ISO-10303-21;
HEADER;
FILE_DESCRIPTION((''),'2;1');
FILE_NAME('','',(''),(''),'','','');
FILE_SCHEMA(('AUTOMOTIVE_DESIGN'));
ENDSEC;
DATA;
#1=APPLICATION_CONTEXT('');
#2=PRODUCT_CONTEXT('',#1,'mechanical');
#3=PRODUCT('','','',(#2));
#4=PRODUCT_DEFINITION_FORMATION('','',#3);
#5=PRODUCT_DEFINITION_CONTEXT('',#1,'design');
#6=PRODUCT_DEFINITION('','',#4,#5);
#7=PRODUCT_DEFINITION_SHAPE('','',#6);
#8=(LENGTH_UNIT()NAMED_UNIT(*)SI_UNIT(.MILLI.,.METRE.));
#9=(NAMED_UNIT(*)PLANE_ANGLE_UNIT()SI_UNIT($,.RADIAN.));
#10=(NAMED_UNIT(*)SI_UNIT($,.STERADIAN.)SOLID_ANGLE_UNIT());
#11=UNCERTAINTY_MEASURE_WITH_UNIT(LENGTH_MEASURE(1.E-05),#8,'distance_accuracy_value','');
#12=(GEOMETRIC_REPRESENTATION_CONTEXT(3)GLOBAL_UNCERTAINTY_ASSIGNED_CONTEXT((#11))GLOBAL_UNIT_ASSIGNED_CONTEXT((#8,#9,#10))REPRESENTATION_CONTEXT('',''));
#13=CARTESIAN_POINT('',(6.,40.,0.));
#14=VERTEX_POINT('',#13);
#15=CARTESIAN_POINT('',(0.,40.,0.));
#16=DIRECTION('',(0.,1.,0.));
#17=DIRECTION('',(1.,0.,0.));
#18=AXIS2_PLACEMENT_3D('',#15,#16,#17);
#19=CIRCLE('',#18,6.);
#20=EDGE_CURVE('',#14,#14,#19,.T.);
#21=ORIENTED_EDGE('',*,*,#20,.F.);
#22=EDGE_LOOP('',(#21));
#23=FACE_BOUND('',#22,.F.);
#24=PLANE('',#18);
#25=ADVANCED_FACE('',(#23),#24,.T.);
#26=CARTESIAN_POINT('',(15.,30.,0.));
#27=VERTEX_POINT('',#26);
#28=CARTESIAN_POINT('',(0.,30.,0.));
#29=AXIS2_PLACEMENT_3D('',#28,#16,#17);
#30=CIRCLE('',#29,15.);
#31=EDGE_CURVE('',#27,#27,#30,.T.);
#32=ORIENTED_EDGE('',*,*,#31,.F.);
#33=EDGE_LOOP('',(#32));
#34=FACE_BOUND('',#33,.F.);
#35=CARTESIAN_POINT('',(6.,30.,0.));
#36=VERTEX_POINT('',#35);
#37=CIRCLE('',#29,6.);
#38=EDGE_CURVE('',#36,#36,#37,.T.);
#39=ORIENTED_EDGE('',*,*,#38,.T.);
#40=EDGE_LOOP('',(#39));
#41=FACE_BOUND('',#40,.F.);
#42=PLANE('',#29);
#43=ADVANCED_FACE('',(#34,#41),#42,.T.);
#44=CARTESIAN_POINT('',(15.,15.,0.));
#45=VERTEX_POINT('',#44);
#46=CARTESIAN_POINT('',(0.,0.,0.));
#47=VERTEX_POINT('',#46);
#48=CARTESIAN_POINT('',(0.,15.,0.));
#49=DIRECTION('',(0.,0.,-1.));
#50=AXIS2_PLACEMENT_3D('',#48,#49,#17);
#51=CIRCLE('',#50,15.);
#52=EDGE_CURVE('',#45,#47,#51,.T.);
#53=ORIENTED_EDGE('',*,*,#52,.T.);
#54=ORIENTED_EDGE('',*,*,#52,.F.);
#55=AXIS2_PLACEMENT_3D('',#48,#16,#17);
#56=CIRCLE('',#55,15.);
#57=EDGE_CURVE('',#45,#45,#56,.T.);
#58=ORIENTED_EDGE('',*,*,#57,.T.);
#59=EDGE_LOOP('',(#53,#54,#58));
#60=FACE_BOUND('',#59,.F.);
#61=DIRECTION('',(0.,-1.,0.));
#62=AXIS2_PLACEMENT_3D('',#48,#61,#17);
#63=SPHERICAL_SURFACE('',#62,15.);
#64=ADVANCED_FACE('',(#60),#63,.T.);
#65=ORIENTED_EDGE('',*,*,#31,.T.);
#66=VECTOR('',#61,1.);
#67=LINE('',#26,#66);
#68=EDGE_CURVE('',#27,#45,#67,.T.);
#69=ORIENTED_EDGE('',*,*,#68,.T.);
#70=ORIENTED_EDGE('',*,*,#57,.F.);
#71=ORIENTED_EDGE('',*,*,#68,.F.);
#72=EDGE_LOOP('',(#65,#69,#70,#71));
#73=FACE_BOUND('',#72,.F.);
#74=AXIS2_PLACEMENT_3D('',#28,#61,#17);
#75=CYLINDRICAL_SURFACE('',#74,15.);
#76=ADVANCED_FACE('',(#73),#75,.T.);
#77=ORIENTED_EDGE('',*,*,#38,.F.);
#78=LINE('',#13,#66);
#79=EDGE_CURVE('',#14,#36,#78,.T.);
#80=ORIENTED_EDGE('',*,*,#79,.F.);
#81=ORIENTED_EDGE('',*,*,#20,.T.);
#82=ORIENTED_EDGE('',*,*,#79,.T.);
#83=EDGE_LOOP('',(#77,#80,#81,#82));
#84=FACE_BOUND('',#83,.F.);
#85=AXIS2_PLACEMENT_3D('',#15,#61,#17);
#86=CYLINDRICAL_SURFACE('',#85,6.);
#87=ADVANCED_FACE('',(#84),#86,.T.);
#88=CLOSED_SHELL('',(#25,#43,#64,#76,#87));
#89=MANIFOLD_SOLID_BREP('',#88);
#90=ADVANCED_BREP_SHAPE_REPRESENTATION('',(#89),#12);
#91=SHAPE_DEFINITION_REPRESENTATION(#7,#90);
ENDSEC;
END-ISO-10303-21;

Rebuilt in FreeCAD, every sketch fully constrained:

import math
import FreeCAD as App
import Part
import Sketcher

V = App.Vector
Q = App.Units.Quantity

doc = App.newDocument("Part")
body = doc.addObject("PartDesign::Body", "Body")

sketch1 = body.newObject("Sketcher::SketchObject", "Sketch")
sketch1.AttachmentSupport = (doc.getObject("XY_Plane"), [""])
sketch1.MapMode = "FlatFace"
sketch1.addGeometry(Part.LineSegment(V(6, 40, 0), V(0, 40, 0)), False)
sketch1.addGeometry(Part.LineSegment(V(0, 40, 0), V(0, 0, 0)), False)
sketch1.addGeometry(Part.ArcOfCircle(Part.Circle(V(0, 15, 0), V(0, 0, 1), 15), math.radians(-90), math.radians(0)), False)
sketch1.addGeometry(Part.LineSegment(V(15, 15, 0), V(15, 30, 0)), False)
sketch1.addGeometry(Part.LineSegment(V(15, 30, 0), V(6, 30, 0)), False)
sketch1.addGeometry(Part.LineSegment(V(6, 30, 0), V(6, 40, 0)), False)
sketch1.addConstraint(Sketcher.Constraint("Coincident", 0, 2, 1, 1))
sketch1.addConstraint(Sketcher.Constraint("Coincident", 1, 2, 2, 1))
sketch1.addConstraint(Sketcher.Constraint("Tangent", 2, 2, 3, 1))
sketch1.addConstraint(Sketcher.Constraint("Coincident", 3, 2, 4, 1))
sketch1.addConstraint(Sketcher.Constraint("Coincident", 4, 2, 5, 1))
sketch1.addConstraint(Sketcher.Constraint("Coincident", 5, 2, 0, 1))
sketch1.addConstraint(Sketcher.Constraint("Horizontal", 0))
sketch1.addConstraint(Sketcher.Constraint("Vertical", 1))
sketch1.addConstraint(Sketcher.Constraint("Vertical", 3))
sketch1.addConstraint(Sketcher.Constraint("Horizontal", 4))
sketch1.addConstraint(Sketcher.Constraint("Vertical", 5))
sketch1.addConstraint(Sketcher.Constraint("Coincident", 1, 2, -1, 1))
sketch1.addConstraint(Sketcher.Constraint("PointOnObject", 2, 3, -2))
sketch1.addConstraint(Sketcher.Constraint("Radius", 2, Q("15 mm")))
sketch1.addConstraint(Sketcher.Constraint("DistanceX", 0, 2, 0, 1, Q("6 mm")))
sketch1.addConstraint(Sketcher.Constraint("DistanceY", 1, 2, 1, 1, Q("40 mm")))
sketch1.addConstraint(Sketcher.Constraint("DistanceY", 3, 1, 3, 2, Q("15 mm")))
revolution = body.newObject("PartDesign::Revolution", "Revolution")
revolution.Profile = sketch1
revolution.ReferenceAxis = (sketch1, ["V_Axis"])
revolution.Angle = 360

doc.recompute()
